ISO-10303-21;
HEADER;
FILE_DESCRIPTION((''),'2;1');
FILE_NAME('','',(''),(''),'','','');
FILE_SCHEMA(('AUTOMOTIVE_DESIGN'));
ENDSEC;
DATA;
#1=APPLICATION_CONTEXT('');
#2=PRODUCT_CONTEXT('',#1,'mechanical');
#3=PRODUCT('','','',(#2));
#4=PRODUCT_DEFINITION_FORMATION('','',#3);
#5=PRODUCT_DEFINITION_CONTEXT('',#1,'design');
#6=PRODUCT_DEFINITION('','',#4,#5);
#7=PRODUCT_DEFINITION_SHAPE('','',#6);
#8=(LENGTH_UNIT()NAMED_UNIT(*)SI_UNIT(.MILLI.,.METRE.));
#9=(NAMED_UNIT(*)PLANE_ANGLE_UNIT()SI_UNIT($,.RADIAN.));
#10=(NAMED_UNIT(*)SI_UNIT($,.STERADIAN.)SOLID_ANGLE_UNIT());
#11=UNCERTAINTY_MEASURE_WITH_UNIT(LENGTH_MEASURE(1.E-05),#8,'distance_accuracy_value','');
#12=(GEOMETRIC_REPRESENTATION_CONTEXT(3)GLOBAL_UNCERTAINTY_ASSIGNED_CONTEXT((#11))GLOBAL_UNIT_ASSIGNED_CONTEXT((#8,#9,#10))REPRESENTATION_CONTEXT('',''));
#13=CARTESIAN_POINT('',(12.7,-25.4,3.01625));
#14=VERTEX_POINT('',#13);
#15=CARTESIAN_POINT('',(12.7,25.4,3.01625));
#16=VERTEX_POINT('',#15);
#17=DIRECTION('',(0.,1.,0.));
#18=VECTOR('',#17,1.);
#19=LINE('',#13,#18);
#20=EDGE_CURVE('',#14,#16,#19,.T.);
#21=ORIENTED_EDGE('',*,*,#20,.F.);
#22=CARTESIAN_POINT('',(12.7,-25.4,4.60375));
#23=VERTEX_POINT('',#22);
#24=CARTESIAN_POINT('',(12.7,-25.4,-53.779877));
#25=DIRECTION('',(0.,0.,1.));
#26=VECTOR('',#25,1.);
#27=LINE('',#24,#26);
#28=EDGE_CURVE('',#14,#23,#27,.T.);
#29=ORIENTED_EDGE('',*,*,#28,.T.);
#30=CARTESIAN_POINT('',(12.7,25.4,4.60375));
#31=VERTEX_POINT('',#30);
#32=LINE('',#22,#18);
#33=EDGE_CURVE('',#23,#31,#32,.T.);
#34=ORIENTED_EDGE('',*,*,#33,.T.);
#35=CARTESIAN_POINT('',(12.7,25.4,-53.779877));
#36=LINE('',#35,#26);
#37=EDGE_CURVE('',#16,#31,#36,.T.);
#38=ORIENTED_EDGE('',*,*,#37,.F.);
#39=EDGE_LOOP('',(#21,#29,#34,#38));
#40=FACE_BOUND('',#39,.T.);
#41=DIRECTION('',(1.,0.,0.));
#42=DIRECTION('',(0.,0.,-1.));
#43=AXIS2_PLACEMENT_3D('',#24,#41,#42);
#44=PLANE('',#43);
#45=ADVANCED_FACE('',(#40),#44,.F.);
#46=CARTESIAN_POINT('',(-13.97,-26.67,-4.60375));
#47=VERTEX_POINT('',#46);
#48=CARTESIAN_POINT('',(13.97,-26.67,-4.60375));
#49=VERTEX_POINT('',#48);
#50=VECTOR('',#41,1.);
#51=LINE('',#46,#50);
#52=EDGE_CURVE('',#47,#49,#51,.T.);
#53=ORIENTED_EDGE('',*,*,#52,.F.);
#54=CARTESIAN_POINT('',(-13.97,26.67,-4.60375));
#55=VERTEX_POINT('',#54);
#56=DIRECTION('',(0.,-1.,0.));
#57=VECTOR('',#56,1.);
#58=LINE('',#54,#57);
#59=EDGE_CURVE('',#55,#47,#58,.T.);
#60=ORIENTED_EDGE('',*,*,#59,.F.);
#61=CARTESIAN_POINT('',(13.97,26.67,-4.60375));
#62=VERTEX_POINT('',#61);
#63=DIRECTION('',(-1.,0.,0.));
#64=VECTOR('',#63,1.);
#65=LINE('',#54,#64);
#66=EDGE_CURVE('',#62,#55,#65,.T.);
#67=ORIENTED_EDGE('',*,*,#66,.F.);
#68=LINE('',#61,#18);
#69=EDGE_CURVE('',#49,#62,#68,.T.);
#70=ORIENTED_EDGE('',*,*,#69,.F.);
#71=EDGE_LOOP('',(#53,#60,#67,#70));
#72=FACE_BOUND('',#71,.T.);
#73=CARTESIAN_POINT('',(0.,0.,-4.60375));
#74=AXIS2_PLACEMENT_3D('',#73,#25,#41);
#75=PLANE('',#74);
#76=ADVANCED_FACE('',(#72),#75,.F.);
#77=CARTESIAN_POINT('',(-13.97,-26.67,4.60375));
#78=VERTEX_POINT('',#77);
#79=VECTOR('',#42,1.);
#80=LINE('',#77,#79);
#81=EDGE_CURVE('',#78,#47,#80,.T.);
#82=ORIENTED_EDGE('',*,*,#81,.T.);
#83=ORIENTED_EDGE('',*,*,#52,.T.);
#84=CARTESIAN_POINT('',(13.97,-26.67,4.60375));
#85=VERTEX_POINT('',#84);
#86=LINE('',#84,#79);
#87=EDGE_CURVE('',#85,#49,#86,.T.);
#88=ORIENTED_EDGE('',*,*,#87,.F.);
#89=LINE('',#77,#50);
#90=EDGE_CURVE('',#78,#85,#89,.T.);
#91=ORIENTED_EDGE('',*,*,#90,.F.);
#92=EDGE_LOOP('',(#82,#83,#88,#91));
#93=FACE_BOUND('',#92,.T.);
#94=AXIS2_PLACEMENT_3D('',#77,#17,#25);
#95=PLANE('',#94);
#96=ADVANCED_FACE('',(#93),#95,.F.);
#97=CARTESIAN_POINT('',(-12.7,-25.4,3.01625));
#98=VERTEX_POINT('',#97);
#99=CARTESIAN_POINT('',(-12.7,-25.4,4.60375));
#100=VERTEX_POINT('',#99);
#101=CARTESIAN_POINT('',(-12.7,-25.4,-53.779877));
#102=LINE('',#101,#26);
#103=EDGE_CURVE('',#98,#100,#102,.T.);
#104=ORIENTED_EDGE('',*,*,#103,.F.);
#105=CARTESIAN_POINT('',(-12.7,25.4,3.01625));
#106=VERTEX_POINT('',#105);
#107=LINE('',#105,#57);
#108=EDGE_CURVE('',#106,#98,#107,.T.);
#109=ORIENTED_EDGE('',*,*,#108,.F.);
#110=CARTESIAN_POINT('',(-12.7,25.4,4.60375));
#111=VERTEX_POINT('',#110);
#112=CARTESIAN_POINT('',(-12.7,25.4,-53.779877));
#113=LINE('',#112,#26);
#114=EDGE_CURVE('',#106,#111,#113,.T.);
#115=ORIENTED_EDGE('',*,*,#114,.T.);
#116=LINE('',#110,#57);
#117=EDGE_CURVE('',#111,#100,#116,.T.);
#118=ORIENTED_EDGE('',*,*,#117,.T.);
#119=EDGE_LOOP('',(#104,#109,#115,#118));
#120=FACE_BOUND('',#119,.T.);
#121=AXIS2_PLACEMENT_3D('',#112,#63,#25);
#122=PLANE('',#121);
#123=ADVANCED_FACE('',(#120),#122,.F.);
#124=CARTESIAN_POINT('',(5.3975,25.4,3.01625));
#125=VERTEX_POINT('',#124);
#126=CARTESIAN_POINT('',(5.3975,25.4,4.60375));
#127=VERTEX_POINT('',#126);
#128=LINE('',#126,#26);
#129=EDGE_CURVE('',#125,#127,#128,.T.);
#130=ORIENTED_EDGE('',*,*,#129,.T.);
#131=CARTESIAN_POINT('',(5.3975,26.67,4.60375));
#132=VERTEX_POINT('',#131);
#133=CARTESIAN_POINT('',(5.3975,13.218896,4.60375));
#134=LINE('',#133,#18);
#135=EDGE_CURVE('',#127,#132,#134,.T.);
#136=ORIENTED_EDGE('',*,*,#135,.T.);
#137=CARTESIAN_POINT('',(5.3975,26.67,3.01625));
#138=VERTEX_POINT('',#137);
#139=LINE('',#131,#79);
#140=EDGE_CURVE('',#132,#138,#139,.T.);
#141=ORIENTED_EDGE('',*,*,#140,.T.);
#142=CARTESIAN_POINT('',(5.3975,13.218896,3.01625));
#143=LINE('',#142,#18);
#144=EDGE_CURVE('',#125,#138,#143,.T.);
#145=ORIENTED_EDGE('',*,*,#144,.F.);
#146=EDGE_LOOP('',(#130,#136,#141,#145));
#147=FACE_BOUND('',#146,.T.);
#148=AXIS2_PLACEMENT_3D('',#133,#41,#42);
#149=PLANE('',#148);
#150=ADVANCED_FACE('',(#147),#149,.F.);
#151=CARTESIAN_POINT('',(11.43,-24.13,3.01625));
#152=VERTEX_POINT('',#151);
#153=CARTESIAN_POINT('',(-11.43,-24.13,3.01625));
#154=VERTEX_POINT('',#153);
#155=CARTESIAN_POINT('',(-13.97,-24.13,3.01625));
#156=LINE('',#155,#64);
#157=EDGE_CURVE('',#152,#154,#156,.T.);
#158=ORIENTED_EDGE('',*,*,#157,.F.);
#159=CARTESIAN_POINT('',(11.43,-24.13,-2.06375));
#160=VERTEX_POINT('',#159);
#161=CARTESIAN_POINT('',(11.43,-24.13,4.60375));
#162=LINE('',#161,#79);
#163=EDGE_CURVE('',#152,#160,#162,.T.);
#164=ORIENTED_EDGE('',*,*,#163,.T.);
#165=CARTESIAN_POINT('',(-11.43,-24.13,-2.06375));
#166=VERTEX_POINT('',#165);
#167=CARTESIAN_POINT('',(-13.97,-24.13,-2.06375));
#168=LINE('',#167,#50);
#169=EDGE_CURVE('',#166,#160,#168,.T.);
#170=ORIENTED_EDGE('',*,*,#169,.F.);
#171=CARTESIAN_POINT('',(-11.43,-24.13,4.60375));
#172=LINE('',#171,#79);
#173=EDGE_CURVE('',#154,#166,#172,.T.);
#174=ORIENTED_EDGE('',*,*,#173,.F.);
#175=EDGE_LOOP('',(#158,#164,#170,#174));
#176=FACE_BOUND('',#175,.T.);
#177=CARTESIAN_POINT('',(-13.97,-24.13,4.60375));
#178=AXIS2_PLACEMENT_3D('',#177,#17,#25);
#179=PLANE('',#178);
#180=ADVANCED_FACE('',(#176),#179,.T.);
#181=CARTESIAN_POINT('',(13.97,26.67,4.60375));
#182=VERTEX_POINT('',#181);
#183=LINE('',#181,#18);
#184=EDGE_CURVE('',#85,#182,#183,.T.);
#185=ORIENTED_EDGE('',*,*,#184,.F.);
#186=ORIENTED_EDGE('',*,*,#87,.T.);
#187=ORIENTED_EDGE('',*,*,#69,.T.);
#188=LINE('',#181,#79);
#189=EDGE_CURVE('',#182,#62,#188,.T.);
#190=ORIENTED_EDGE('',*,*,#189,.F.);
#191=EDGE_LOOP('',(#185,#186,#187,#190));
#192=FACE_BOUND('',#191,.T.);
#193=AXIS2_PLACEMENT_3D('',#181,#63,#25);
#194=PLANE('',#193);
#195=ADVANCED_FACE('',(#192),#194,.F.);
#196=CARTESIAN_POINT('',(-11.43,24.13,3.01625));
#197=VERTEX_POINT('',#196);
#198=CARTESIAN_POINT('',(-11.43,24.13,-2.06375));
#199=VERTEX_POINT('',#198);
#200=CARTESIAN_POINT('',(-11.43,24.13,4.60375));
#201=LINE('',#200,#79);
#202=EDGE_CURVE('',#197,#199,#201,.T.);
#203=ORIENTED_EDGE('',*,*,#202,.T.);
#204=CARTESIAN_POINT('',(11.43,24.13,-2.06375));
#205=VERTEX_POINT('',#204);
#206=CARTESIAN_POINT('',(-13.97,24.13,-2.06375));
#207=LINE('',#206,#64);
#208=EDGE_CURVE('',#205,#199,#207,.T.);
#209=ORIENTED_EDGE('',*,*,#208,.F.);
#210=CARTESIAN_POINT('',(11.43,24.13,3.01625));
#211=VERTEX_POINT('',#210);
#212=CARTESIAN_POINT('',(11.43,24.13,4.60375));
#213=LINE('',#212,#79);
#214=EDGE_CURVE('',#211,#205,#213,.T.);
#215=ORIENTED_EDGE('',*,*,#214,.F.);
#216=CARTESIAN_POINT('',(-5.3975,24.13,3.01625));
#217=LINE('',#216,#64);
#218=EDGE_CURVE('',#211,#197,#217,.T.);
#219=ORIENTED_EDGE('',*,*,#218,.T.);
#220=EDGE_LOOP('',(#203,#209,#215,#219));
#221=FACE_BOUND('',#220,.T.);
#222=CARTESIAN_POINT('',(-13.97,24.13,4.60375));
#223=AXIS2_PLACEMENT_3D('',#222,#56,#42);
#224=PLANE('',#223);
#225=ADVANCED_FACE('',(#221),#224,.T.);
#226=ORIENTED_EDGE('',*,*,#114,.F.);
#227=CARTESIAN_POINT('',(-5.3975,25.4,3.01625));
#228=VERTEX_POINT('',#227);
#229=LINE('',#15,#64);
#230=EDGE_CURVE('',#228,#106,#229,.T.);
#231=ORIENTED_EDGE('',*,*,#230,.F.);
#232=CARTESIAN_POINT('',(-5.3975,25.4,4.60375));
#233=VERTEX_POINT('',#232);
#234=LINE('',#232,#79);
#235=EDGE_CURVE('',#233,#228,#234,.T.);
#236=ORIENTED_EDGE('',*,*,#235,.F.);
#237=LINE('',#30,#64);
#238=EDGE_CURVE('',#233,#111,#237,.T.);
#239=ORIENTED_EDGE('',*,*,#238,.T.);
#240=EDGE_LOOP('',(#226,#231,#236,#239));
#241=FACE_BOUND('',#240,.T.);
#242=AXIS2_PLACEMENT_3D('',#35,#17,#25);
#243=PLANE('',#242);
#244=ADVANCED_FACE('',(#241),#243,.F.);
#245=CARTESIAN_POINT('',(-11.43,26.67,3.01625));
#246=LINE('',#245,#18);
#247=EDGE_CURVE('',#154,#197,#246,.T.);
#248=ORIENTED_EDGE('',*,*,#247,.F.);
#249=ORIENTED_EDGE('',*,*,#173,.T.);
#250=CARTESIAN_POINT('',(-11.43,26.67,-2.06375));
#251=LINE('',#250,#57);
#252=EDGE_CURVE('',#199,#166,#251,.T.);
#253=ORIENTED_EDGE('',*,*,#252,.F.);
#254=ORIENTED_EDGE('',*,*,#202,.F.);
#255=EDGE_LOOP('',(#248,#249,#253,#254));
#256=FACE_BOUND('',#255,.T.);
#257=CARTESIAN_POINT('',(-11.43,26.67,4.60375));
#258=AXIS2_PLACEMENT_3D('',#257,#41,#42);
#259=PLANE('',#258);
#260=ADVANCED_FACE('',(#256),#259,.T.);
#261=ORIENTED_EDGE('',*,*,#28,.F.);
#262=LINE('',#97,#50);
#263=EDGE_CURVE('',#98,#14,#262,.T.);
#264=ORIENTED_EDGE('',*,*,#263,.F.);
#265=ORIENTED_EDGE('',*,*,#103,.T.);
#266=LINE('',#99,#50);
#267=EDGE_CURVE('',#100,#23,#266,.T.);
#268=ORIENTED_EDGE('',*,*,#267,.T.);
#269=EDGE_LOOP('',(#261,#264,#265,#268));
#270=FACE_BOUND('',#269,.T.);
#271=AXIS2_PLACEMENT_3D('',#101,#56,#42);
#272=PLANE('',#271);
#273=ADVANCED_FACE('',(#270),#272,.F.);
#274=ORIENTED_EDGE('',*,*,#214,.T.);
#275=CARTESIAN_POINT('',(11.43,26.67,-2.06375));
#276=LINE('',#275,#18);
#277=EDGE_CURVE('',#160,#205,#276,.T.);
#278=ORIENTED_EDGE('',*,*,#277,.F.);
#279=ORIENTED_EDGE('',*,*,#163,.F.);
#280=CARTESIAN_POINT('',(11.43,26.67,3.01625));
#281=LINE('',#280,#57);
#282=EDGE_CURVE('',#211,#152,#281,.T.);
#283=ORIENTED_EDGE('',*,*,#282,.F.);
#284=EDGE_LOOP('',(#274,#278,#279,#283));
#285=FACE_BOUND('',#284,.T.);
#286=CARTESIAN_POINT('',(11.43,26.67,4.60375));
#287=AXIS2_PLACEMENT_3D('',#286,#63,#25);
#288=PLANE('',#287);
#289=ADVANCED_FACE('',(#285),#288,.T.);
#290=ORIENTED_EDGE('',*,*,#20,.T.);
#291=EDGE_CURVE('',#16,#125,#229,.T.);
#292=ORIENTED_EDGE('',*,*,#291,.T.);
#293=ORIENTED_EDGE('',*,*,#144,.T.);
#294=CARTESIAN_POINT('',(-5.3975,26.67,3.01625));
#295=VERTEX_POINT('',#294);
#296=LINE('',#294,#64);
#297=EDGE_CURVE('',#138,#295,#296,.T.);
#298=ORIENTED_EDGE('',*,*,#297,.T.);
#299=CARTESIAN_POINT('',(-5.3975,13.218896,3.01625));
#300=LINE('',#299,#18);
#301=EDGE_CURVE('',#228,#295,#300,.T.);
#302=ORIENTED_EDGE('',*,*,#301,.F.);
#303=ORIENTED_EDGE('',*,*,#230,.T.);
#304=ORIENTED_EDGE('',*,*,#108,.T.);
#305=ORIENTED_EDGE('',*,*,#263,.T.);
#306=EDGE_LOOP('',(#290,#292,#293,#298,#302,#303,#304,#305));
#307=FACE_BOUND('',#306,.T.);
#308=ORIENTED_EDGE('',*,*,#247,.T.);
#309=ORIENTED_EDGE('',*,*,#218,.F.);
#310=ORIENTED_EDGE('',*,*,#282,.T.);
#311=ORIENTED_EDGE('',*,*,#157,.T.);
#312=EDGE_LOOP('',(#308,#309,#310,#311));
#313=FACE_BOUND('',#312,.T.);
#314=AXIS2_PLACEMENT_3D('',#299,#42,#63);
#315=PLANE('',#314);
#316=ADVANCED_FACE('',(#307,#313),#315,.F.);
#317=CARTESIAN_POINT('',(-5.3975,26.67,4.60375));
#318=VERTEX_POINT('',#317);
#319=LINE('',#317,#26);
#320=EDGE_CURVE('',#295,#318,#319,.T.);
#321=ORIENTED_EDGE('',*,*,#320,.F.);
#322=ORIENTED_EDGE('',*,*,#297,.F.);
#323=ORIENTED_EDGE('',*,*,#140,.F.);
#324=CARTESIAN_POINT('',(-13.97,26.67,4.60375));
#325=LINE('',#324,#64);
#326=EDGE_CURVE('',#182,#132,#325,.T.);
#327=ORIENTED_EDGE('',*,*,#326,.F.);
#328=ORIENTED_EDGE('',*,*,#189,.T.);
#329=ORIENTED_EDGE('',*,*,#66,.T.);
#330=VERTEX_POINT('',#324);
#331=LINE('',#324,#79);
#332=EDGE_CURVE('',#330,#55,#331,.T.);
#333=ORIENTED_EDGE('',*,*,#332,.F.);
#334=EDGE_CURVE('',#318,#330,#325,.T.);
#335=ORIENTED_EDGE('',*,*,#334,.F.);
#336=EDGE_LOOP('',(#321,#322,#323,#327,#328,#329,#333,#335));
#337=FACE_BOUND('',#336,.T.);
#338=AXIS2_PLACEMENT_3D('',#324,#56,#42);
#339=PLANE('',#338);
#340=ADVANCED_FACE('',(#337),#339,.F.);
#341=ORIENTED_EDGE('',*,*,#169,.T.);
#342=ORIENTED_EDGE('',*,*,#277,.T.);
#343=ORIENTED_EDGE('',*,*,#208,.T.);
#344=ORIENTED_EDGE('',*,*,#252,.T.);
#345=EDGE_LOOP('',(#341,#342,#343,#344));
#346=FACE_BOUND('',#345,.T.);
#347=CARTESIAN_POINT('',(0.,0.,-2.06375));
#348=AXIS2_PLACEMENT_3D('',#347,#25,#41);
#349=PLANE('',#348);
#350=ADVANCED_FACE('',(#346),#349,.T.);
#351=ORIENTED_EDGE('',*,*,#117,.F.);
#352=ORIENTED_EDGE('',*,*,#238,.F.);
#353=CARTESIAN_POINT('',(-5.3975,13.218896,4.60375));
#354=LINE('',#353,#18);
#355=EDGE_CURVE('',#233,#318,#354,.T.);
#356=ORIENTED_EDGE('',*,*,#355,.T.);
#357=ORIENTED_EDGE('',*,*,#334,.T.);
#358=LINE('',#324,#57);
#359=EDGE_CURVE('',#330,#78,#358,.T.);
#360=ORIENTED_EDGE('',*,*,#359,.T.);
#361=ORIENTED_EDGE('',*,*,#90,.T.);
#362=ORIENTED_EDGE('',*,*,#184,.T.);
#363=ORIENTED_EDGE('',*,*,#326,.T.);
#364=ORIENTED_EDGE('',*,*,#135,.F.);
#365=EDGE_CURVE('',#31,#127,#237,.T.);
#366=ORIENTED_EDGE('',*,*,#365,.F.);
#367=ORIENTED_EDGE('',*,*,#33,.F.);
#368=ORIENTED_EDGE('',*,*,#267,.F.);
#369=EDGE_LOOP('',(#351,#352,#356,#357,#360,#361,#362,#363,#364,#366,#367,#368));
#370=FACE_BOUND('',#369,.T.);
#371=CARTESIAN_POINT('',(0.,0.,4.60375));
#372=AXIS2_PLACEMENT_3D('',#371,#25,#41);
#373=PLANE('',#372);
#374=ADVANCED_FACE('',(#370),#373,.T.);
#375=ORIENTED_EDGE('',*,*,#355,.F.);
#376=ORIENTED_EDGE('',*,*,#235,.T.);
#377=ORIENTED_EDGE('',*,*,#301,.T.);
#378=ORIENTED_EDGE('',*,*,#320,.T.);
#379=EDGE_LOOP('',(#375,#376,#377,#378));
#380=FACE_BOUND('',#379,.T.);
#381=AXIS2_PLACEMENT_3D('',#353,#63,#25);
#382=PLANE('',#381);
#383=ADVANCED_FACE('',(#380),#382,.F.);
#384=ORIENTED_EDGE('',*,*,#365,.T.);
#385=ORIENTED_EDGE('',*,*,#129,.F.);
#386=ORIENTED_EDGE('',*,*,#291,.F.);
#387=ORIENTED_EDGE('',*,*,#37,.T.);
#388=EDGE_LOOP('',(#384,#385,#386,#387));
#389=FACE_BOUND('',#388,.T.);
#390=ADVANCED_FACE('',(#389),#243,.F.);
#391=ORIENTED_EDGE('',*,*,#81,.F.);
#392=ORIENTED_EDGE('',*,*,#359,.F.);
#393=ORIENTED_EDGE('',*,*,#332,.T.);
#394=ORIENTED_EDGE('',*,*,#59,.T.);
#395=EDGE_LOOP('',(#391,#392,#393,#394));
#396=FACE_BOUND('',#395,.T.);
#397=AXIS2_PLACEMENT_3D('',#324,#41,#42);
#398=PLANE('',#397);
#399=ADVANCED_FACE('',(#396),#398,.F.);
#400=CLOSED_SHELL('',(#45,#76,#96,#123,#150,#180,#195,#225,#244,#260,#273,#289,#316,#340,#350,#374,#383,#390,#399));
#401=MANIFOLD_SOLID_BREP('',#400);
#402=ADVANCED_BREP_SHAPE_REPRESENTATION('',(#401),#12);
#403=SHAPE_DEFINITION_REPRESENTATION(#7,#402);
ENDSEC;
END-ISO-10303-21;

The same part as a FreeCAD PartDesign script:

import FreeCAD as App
import Part
import Sketcher

V = App.Vector
Q = App.Units.Quantity


def faces_at(feature, points):
    """Names of the faces that lie closest to the given points."""
    faces = feature.Shape.Faces
    near = lambda p: min(range(len(faces)), key=lambda i: faces[i].distToShape(Part.Vertex(*p))[0])
    return sorted({f"Face{near(p) + 1}" for p in points})

doc = App.newDocument("Part")
params = doc.addObject("Spreadsheet::Sheet", "Params")
for row, (alias, value) in enumerate([
    ("sketch1_width", "1.1 in"),
    ("sketch1_height", "2.1 in"),
    ("pad1_length", "0.3625 in"),
    ("thickness_wall", "0.1 in"),
    ("sketch2_width", "0.425 in"),
    ("sketch2_height", "0.0625 in"),
    ("pocket1_length", "0.1 in"),
    ("sketch3_width", "1 in"),
    ("sketch3_height", "2 in"),
    ("pocket2_length", "0.0625 in"),
], start=1):
    params.set(f"A{row}", alias)
    params.set(f"B{row}", "=" + value)
    params.setAlias(f"B{row}", alias)

body = doc.addObject("PartDesign::Body", "Body")

# Sketch on XY plane
sketch1 = body.newObject("Sketcher::SketchObject", "Sketch")
sketch1.AttachmentSupport = (doc.getObject("XY_Plane"), [""])
sketch1.MapMode = "FlatFace"
sketch1.addGeometry([
    Part.LineSegment(V(-14, 27, 0), V(-14, -27, 0)),
    Part.LineSegment(V(-14, -27, 0), V(14, -27, 0)),
    Part.LineSegment(V(14, -27, 0), V(14, 27, 0)),
    Part.LineSegment(V(14, 27, 0), V(-14, 27, 0)),
], False)
sketch1.addConstraint([
    Sketcher.Constraint("Coincident", 0, 2, 1, 1),
    Sketcher.Constraint("Coincident", 1, 2, 2, 1),
    Sketcher.Constraint("Coincident", 2, 2, 3, 1),
    Sketcher.Constraint("Coincident", 3, 2, 0, 1),
    Sketcher.Constraint("Vertical", 0),
    Sketcher.Constraint("Horizontal", 1),
    Sketcher.Constraint("Vertical", 2),
    Sketcher.Constraint("Horizontal", 3),
    Sketcher.Constraint("Symmetric", 0, 2, 2, 2, -1, 1),
    Sketcher.Constraint("DistanceX", 1, 1, 1, 2, Q("1.1 in")),
    Sketcher.Constraint("DistanceY", 0, 2, 0, 1, Q("2.1 in")),
])
sketch1.setExpression("Constraints[9]", "Params.sketch1_width")
sketch1.setExpression("Constraints[10]", "Params.sketch1_height")
pad1 = body.newObject("PartDesign::Pad", "Pad")
pad1.Profile = sketch1
pad1.setExpression("Length", "Params.pad1_length")
pad1.Midplane = True
doc.recompute()

thickness = body.newObject("PartDesign::Thickness", "Thickness")
thickness.Base = (pad1, faces_at(pad1, [(0, 0, 4.604)]))
thickness.setExpression("Value", "Params.thickness_wall")
thickness.Reversed = True
thickness.Join = "Intersection"

# Sketch on XZ plane
sketch2 = body.newObject("Sketcher::SketchObject", "Sketch001")
sketch2.AttachmentSupport = (doc.getObject("XZ_Plane"), [""])
sketch2.MapMode = "FlatFace"
sketch2.AttachmentOffset = App.Placement(V(0, 0, -1.05 * 25.4), App.Rotation())
sketch2.addGeometry([
    Part.LineSegment(V(-5.4, 3, 0), V(-5.4, 4.6, 0)),
    Part.LineSegment(V(-5.4, 4.6, 0), V(5.4, 4.6, 0)),
    Part.LineSegment(V(5.4, 4.6, 0), V(5.4, 3, 0)),
    Part.LineSegment(V(5.4, 3, 0), V(-5.4, 3, 0)),
], False)
sketch2.addConstraint([
    Sketcher.Constraint("Coincident", 0, 2, 1, 1),
    Sketcher.Constraint("Coincident", 1, 2, 2, 1),
    Sketcher.Constraint("Coincident", 2, 2, 3, 1),
    Sketcher.Constraint("Coincident", 3, 2, 0, 1),
    Sketcher.Constraint("Vertical", 0),
    Sketcher.Constraint("Horizontal", 1),
    Sketcher.Constraint("Vertical", 2),
    Sketcher.Constraint("Horizontal", 3),
    Sketcher.Constraint("DistanceX", 1, 1, 1, 2, Q("0.425 in")),
    Sketcher.Constraint("DistanceY", 0, 1, 0, 2, Q("0.0625 in")),
    Sketcher.Constraint("DistanceX", 0, 2, -1, 1, Q("0.2125 in")),
    Sketcher.Constraint("DistanceY", -1, 1, 0, 2, 4.60375),
])
sketch2.setExpression("Constraints[8]", "Params.sketch2_width")
sketch2.setExpression("Constraints[9]", "Params.sketch2_height")
pocket1 = body.newObject("PartDesign::Pocket", "Pocket")
pocket1.Profile = sketch2
pocket1.setExpression("Length", "Params.pocket1_length")
pocket1.Reversed = True

# Sketch on XY plane
sketch3 = body.newObject("Sketcher::SketchObject", "Sketch002")
sketch3.AttachmentSupport = (doc.getObject("XY_Plane"), [""])
sketch3.MapMode = "FlatFace"
sketch3.AttachmentOffset = App.Placement(V(0, 0, 4.60375), App.Rotation())
sketch3.addGeometry([
    Part.LineSegment(V(-13, 25, 0), V(-13, -25, 0)),
    Part.LineSegment(V(-13, -25, 0), V(13, -25, 0)),
    Part.LineSegment(V(13, -25, 0), V(13, 25, 0)),
    Part.LineSegment(V(13, 25, 0), V(-13, 25, 0)),
], False)
sketch3.addConstraint([
    Sketcher.Constraint("Coincident", 0, 2, 1, 1),
    Sketcher.Constraint("Coincident", 1, 2, 2, 1),
    Sketcher.Constraint("Coincident", 2, 2, 3, 1),
    Sketcher.Constraint("Coincident", 3, 2, 0, 1),
    Sketcher.Constraint("Vertical", 0),
    Sketcher.Constraint("Horizontal", 1),
    Sketcher.Constraint("Vertical", 2),
    Sketcher.Constraint("Horizontal", 3),
    Sketcher.Constraint("Symmetric", 0, 2, 2, 2, -1, 1),
    Sketcher.Constraint("DistanceX", 1, 1, 1, 2, Q("1 in")),
    Sketcher.Constraint("DistanceY", 0, 2, 0, 1, Q("2 in")),
])
sketch3.setExpression("Constraints[9]", "Params.sketch3_width")
sketch3.setExpression("Constraints[10]", "Params.sketch3_height")
pocket2 = body.newObject("PartDesign::Pocket", "Pocket001")
pocket2.Profile = sketch3
pocket2.setExpression("Length", "Params.pocket2_length")

doc.recompute()
